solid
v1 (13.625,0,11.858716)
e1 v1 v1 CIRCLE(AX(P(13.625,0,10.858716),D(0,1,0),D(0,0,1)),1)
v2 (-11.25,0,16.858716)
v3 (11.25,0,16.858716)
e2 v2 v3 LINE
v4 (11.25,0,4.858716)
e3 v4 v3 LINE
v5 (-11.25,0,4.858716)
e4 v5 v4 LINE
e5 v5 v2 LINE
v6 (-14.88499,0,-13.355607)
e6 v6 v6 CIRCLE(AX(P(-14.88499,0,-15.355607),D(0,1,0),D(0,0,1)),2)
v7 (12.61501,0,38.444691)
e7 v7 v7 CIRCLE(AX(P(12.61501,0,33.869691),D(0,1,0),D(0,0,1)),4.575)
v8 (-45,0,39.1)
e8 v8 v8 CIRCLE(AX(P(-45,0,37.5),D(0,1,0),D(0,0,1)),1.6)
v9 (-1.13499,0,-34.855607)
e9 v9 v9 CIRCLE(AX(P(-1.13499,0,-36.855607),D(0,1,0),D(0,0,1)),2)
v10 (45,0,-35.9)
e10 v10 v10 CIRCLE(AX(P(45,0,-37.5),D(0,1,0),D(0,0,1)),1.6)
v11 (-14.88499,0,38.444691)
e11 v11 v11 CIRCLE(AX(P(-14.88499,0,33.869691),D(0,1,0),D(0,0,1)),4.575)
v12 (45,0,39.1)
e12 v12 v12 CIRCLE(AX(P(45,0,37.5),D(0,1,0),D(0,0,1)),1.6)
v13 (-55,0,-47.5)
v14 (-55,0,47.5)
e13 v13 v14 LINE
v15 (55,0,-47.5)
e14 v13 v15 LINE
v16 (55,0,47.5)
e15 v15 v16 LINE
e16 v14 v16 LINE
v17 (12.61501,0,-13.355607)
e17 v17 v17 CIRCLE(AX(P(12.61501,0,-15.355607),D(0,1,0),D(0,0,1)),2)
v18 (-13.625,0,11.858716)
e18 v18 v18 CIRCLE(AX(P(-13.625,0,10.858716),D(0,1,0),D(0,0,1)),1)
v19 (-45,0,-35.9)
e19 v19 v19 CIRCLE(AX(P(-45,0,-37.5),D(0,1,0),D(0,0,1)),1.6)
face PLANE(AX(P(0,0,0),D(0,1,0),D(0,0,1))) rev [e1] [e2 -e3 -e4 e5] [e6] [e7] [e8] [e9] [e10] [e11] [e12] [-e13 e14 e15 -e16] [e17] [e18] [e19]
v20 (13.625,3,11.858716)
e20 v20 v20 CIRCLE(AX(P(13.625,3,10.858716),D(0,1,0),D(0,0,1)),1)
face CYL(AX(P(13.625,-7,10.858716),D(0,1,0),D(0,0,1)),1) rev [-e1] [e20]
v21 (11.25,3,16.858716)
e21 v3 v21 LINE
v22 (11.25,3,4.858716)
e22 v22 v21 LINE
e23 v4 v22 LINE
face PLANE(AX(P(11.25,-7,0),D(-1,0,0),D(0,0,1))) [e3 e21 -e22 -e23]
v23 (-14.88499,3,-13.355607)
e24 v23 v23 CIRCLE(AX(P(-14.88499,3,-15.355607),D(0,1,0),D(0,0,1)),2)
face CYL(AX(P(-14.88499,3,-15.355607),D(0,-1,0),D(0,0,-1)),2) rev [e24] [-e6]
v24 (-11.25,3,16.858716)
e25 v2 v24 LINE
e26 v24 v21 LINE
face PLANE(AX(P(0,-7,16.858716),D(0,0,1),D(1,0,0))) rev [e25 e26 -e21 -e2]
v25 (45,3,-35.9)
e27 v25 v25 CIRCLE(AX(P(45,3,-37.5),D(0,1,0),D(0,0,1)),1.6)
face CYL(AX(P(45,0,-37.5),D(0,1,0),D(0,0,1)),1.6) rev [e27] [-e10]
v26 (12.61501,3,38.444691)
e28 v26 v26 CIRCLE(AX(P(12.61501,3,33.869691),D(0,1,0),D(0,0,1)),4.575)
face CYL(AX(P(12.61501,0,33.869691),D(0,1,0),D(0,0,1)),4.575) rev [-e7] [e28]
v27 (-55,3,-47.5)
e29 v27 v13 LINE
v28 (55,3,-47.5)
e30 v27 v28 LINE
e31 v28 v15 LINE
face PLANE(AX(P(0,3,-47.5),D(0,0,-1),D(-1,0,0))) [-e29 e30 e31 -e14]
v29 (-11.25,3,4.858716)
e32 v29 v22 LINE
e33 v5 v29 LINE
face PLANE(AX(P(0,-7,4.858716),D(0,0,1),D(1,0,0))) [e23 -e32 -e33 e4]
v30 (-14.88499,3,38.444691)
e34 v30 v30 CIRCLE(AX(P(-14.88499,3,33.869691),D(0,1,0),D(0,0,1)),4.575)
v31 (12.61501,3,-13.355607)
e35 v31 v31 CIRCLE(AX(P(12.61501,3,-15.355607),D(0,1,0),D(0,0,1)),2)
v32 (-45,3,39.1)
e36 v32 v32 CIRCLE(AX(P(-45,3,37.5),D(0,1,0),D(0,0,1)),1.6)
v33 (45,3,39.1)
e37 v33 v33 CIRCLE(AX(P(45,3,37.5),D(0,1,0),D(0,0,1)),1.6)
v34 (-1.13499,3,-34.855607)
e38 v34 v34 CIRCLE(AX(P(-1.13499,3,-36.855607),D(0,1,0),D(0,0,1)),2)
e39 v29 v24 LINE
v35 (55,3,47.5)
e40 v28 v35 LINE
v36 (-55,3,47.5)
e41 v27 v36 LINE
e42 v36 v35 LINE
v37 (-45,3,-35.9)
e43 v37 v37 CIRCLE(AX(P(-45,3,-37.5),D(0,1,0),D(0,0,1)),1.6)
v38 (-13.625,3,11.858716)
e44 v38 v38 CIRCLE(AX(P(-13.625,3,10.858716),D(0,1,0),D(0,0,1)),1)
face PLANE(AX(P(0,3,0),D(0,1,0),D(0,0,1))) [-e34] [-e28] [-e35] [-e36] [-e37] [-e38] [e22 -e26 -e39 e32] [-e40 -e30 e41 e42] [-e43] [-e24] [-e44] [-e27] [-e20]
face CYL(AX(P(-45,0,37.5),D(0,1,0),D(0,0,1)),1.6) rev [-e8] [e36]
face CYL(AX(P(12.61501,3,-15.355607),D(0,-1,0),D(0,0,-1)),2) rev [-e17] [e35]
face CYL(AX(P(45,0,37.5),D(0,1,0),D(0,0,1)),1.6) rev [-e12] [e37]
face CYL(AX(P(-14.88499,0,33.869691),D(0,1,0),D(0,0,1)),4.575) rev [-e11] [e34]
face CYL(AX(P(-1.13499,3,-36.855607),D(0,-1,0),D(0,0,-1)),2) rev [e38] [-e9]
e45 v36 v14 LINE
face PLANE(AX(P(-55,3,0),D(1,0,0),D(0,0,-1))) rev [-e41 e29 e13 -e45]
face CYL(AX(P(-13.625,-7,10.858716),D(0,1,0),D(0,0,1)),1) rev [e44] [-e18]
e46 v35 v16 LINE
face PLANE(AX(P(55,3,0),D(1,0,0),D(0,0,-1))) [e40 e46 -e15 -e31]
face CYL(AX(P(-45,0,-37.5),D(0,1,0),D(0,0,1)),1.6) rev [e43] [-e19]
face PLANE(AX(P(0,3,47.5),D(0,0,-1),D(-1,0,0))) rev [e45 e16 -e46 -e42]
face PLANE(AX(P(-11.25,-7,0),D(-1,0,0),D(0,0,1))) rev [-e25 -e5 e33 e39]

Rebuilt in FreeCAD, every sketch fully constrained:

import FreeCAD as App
import Part
import Sketcher

V = App.Vector

doc = App.newDocument("Part")
body = doc.addObject("PartDesign::Body", "Body")

# Sketch on XZ plane
sketch1 = body.newObject("Sketcher::SketchObject", "Sketch")
sketch1.AttachmentSupport = (doc.getObject("XZ_Plane"), [""])
sketch1.MapMode = "FlatFace"
sketch1.addGeometry([
    Part.LineSegment(V(-55, -47.5, 0), V(-55, 47.5, 0)),  # 0
    Part.LineSegment(V(-55, 47.5, 0), V(55, 47.5, 0)),  # 1
    Part.LineSegment(V(55, 47.5, 0), V(55, -47.5, 0)),  # 2
    Part.LineSegment(V(55, -47.5, 0), V(-55, -47.5, 0)),  # 3
    Part.Circle(V(-14.9, -15.4, 0), V(0, 0, 1), 2),  # 4
    Part.Circle(V(12.6, -15.4, 0), V(0, 0, 1), 2),  # 5
    Part.Circle(V(-1.1, -36.9, 0), V(0, 0, 1), 2),  # 6
], False)
sketch1.addConstraint([
    Sketcher.Constraint("Coincident", 0, 2, 1, 1),
    Sketcher.Constraint("Coincident", 1, 2, 2, 1),
    Sketcher.Constraint("Coincident", 2, 2, 3, 1),
    Sketcher.Constraint("Coincident", 3, 2, 0, 1),
    Sketcher.Constraint("Vertical", 0),
    Sketcher.Constraint("Horizontal", 1),
    Sketcher.Constraint("Vertical", 2),
    Sketcher.Constraint("Horizontal", 3),
    Sketcher.Constraint("Equal", 4, 5),
    Sketcher.Constraint("Equal", 5, 6),
    Sketcher.Constraint("Symmetric", 0, 2, 2, 2, -1, 1),
    Sketcher.Constraint("Horizontal", 4, 3, 5, 3),
    Sketcher.Constraint("Diameter", 4, 4.0),
    Sketcher.Constraint("DistanceX", 1, 1, 1, 2, 110.0),
    Sketcher.Constraint("DistanceY", 0, 1, 0, 2, 95.0),
    Sketcher.Constraint("DistanceX", 4, 3, 5, 3, 27.5),
    Sketcher.Constraint("DistanceY", 6, 3, 4, 3, 21.5),
    Sketcher.Constraint("DistanceX", 4, 3, 6, 3, 13.75),
    Sketcher.Constraint("DistanceX", 4, 3, -1, 1, 14.88499),
    Sketcher.Constraint("DistanceY", 4, 3, -1, 1, 15.355607),
])
pad1 = body.newObject("PartDesign::Pad", "Pad")
pad1.Profile = sketch1
pad1.Length = 3
pad1.Reversed = True

# Sketch on XZ plane
sketch2 = body.newObject("Sketcher::SketchObject", "Sketch001")
sketch2.AttachmentSupport = (doc.getObject("XZ_Plane"), [""])
sketch2.MapMode = "FlatFace"
sketch2.AttachmentOffset = App.Placement(V(0, 0, -3), App.Rotation())
sketch2.addGeometry([
    Part.Circle(V(-45, -37.5, 0), V(0, 0, 1), 1.6),
    Part.Circle(V(45, -37.5, 0), V(0, 0, 1), 1.6),
    Part.Circle(V(-45, 37.5, 0), V(0, 0, 1), 1.6),
    Part.Circle(V(45, 37.5, 0), V(0, 0, 1), 1.6),
], False)
sketch2.addConstraint([
    Sketcher.Constraint("Equal", 0, 1),
    Sketcher.Constraint("Equal", 1, 2),
    Sketcher.Constraint("Equal", 2, 3),
    Sketcher.Constraint("Symmetric", 1, 3, 2, 3, -1, 1),
    Sketcher.Constraint("Symmetric", 0, 3, 3, 3, -1, 1),
    Sketcher.Constraint("Symmetric", 0, 3, 1, 3, -2),
    Sketcher.Constraint("Diameter", 0, 3.2),
    Sketcher.Constraint("DistanceX", 0, 3, -1, 1, 45.0),
    Sketcher.Constraint("DistanceY", 0, 3, 2, 3, 75.0),
])
pocket1 = body.newObject("PartDesign::Pocket", "Pocket")
pocket1.Profile = sketch2
pocket1.Length = 3
pocket1.Reversed = True

# Sketch on XZ plane
sketch3 = body.newObject("Sketcher::SketchObject", "Sketch002")
sketch3.AttachmentSupport = (doc.getObject("XZ_Plane"), [""])
sketch3.MapMode = "FlatFace"
sketch3.AttachmentOffset = App.Placement(V(0, 0, -3), App.Rotation())
sketch3.addGeometry([
    Part.Circle(V(-14.9, 33.9, 0), V(0, 0, 1), 4.6),
    Part.Circle(V(12.6, 33.9, 0), V(0, 0, 1), 4.6),
], False)
sketch3.addConstraint([
    Sketcher.Constraint("Equal", 0, 1),
    Sketcher.Constraint("Horizontal", 0, 3, 1, 3),
    Sketcher.Constraint("Diameter", 0, 9.15),
    Sketcher.Constraint("DistanceX", 0, 3, 1, 3, 27.5),
    Sketcher.Constraint("DistanceX", 0, 3, -1, 1, 14.88499),
    Sketcher.Constraint("DistanceY", -1, 1, 0, 3, 33.869691),
])
pocket2 = body.newObject("PartDesign::Pocket", "Pocket001")
pocket2.Profile = sketch3
pocket2.Length = 3
pocket2.Reversed = True

# Sketch on XZ plane
sketch4 = body.newObject("Sketcher::SketchObject", "Sketch003")
sketch4.AttachmentSupport = (doc.getObject("XZ_Plane"), [""])
sketch4.MapMode = "FlatFace"
sketch4.AttachmentOffset = App.Placement(V(0, 0, -3), App.Rotation())
sketch4.addGeometry([
    Part.Circle(V(-13.6, 10.9, 0), V(0, 0, 1), 1),  # 0
    Part.Circle(V(13.6, 10.9, 0), V(0, 0, 1), 1),  # 1
    Part.LineSegment(V(-11.2, 4.9, 0), V(-11.2, 16.9, 0)),  # 2
    Part.LineSegment(V(-11.2, 16.9, 0), V(11.2, 16.9, 0)),  # 3
    Part.LineSegment(V(11.2, 16.9, 0), V(11.2, 4.9, 0)),  # 4
    Part.LineSegment(V(11.2, 4.9, 0), V(-11.2, 4.9, 0)),  # 5
], False)
sketch4.addConstraint([
    Sketcher.Constraint("Coincident", 2, 2, 3, 1),
    Sketcher.Constraint("Coincident", 3, 2, 4, 1),
    Sketcher.Constraint("Coincident", 4, 2, 5, 1),
    Sketcher.Constraint("Coincident", 5, 2, 2, 1),
    Sketcher.Constraint("Vertical", 2),
    Sketcher.Constraint("Horizontal", 3),
    Sketcher.Constraint("Vertical", 4),
    Sketcher.Constraint("Horizontal", 5),
    Sketcher.Constraint("Equal", 0, 1),
    Sketcher.Constraint("Symmetric", 0, 3, 1, 3, -2),
    Sketcher.Constraint("Diameter", 0, 2.0),
    Sketcher.Constraint("DistanceY", 2, 1, 2, 2, 12.0),
    Sketcher.Constraint("DistanceX", 3, 1, 3, 2, 22.5),
    Sketcher.Constraint("DistanceY", 0, 3, 2, 2, 6.0),
    Sketcher.Constraint("DistanceX", 2, 2, -1, 1, 11.25),
    Sketcher.Constraint("DistanceX", 0, 3, 1, 3, 27.25),
    Sketcher.Constraint("DistanceY", -1, 1, 0, 3, 10.858716),
])
pocket3 = body.newObject("PartDesign::Pocket", "Pocket002")
pocket3.Profile = sketch4
pocket3.Length = 10
pocket3.Reversed = True

doc.recompute()
